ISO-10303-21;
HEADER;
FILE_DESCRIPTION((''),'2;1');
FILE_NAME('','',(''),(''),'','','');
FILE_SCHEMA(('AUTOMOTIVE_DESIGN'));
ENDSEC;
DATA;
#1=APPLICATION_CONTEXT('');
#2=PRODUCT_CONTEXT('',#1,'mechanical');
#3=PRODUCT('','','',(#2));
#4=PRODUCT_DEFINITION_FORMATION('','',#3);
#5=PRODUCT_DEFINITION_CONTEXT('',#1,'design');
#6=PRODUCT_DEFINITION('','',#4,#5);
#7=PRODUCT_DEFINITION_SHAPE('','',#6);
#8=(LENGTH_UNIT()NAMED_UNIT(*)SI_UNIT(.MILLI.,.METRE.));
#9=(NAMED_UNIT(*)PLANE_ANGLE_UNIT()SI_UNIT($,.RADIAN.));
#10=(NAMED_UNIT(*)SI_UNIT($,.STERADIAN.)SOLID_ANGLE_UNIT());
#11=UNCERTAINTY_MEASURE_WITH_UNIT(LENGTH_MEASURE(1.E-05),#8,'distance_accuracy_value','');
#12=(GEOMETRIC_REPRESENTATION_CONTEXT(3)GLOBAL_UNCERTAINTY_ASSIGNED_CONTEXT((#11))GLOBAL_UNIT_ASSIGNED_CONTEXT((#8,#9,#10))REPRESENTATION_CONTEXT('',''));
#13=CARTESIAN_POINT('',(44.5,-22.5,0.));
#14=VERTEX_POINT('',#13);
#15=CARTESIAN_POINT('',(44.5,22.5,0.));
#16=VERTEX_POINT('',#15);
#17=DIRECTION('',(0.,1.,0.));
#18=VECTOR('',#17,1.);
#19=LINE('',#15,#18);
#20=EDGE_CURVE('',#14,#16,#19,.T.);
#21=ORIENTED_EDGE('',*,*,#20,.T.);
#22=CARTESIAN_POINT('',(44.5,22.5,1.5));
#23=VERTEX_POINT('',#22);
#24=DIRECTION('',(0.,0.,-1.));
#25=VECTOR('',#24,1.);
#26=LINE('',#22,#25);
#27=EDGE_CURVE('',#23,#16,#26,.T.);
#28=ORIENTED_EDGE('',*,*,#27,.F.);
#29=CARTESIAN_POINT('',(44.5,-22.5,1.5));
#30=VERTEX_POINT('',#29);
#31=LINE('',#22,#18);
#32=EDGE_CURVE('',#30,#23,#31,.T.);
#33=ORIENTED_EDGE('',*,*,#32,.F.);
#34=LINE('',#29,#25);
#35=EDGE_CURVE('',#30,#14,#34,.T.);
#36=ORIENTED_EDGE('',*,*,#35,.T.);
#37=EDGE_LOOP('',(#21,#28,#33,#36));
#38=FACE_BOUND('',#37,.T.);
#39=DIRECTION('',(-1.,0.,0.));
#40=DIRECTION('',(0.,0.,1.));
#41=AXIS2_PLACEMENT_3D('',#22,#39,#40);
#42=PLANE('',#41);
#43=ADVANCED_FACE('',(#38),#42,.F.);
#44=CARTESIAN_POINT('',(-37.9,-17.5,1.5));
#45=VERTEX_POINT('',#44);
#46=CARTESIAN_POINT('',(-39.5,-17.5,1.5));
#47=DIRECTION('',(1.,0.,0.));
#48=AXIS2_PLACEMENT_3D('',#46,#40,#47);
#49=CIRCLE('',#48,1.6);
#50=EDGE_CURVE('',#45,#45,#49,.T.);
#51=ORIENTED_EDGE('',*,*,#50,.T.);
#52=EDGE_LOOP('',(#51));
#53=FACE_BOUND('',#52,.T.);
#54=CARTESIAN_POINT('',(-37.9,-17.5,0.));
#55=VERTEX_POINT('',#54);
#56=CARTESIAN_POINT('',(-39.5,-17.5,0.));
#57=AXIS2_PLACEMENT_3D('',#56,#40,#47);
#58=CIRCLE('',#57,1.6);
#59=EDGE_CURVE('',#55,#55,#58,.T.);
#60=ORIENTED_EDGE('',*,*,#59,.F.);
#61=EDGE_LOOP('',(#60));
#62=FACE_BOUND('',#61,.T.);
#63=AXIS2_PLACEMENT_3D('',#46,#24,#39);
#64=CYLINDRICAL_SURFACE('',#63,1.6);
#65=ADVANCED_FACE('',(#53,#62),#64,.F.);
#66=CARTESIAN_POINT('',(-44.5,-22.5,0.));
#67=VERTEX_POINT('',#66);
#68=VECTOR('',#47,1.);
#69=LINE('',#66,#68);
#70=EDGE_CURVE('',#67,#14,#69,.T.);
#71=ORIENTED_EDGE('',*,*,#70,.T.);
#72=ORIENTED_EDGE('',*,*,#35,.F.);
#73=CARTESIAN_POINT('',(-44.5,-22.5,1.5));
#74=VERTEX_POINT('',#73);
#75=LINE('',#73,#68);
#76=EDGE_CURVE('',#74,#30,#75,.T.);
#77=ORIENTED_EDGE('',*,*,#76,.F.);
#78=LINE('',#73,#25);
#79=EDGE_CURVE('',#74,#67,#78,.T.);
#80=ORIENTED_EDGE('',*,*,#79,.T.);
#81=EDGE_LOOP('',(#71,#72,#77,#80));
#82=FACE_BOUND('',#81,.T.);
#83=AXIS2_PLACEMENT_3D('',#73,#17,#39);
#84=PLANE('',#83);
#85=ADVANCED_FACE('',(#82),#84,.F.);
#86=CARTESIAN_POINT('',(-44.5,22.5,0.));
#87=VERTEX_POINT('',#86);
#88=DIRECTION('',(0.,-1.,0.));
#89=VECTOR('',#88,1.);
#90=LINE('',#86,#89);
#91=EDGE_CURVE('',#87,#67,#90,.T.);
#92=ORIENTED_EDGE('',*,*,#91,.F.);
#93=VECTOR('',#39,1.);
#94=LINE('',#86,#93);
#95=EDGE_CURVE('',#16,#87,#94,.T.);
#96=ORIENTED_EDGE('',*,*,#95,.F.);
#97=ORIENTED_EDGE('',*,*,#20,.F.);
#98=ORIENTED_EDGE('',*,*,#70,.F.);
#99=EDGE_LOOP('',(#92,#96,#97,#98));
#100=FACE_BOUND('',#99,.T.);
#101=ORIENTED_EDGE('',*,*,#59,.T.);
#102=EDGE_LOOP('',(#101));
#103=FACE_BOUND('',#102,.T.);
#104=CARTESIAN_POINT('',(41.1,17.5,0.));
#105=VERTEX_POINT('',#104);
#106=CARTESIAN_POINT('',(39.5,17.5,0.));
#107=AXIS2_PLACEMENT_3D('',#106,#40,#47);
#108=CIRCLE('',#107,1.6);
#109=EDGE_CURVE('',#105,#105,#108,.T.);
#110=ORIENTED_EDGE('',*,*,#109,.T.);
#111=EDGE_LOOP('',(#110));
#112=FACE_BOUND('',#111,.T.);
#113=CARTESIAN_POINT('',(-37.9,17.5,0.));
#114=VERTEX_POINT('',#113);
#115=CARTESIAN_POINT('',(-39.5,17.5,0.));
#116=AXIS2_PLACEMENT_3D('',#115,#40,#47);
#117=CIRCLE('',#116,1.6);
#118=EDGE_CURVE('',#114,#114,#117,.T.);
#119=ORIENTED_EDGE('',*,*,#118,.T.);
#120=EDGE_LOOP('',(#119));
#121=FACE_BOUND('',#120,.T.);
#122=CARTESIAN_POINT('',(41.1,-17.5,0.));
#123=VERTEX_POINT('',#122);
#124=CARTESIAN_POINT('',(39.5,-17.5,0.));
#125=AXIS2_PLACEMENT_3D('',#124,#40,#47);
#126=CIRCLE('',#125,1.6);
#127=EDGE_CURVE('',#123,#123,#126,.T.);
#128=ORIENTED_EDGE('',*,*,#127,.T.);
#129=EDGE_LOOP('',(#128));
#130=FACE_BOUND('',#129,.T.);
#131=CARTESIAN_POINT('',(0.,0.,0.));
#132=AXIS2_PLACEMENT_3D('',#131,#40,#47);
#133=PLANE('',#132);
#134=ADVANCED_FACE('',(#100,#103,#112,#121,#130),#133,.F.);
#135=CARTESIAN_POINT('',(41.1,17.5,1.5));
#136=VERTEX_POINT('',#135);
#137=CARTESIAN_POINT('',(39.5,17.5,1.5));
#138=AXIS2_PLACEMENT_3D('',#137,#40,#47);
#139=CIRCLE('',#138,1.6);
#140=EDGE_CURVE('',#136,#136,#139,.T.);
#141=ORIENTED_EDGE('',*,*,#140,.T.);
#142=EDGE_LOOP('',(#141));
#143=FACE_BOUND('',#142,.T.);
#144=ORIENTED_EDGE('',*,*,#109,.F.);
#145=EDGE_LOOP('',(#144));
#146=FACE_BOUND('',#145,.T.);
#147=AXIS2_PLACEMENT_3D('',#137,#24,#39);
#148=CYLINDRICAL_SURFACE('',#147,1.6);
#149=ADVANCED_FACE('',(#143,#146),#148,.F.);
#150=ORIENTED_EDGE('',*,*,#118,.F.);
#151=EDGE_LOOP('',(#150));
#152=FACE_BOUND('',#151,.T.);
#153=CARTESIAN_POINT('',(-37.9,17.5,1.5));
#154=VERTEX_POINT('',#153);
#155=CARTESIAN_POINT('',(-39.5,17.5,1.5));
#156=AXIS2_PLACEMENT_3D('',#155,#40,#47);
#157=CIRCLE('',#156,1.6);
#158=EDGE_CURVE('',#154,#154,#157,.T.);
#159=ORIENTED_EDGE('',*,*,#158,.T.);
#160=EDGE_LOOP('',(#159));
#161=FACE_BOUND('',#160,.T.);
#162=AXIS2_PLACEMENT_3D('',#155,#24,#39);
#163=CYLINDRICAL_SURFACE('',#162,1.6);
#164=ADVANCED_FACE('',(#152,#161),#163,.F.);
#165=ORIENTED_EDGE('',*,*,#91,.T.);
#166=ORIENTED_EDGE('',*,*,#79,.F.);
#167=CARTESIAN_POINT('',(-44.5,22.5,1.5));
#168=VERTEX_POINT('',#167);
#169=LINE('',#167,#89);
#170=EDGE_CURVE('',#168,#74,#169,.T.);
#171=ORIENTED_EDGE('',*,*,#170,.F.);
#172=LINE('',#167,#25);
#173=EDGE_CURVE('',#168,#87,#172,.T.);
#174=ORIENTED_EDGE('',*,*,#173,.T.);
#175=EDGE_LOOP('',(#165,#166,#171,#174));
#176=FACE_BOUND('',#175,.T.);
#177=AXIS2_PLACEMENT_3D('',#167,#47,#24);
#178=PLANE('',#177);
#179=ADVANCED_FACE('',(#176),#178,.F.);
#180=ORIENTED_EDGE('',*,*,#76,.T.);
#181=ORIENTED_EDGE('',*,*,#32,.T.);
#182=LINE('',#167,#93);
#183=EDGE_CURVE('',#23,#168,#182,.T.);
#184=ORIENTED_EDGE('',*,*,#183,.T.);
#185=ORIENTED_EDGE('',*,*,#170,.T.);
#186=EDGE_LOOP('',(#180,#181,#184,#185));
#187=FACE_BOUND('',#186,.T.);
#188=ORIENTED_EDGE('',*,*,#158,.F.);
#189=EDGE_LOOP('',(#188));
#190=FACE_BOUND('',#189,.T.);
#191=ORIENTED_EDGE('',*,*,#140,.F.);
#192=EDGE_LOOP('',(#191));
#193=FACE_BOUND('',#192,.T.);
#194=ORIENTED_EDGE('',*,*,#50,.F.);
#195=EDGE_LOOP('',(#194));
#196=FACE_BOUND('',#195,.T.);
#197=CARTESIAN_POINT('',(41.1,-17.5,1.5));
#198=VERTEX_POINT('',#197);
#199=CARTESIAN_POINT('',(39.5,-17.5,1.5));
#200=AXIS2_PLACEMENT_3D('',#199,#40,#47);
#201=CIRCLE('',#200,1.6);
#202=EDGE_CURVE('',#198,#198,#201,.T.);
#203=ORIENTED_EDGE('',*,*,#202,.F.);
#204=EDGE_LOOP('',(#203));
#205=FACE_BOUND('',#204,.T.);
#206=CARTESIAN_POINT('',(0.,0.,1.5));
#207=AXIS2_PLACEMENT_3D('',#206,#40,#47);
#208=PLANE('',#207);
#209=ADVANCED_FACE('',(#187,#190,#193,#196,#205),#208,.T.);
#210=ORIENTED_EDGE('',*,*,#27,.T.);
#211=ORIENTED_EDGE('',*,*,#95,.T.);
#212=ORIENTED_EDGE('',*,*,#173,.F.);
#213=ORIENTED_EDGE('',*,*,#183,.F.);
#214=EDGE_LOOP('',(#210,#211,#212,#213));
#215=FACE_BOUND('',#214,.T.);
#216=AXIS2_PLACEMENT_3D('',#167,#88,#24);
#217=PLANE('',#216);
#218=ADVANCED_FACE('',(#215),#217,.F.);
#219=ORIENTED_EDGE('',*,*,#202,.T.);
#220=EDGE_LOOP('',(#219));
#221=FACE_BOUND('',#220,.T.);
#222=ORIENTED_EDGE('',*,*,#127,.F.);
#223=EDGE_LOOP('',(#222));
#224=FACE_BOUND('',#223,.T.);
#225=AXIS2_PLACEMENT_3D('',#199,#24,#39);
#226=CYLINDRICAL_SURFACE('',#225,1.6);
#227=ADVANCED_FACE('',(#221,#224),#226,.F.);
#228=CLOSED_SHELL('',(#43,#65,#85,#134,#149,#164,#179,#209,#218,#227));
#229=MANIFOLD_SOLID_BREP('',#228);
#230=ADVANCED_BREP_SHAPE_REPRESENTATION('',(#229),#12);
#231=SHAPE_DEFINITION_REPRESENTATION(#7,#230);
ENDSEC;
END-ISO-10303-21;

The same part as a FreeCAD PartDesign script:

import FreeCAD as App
import Part
import Sketcher

V = App.Vector
Q = App.Units.Quantity


def add_polygon(sketch, points):
    """Adds a closed chain of lines whose ends are joined by coincident constraints."""
    first, n = sketch.GeometryCount, len(points)
    for a, b in zip(points, points[1:] + points[:1]):
        sketch.addGeometry(Part.LineSegment(App.Vector(*a, 0), App.Vector(*b, 0)), False)
    for i in range(n):
        sketch.addConstraint(Sketcher.Constraint("Coincident", first + i, 2, first + (i + 1) % n, 1))

doc = App.newDocument("Part")
body = doc.addObject("PartDesign::Body", "Body")

sketch1 = body.newObject("Sketcher::SketchObject", "Sketch")
sketch1.AttachmentSupport = (doc.getObject("XY_Plane"), [""])
sketch1.MapMode = "FlatFace"
add_polygon(sketch1, [(-44.5, 22.5), (-44.5, -22.5), (44.5, -22.5), (44.5, 22.5)])
sketch1.addGeometry(Part.Circle(V(-39.5, -17.5, 0), V(0, 0, 1), 1.6), False)
sketch1.addGeometry(Part.Circle(V(39.5, -17.5, 0), V(0, 0, 1), 1.6), False)
sketch1.addGeometry(Part.Circle(V(-39.5, 17.5, 0), V(0, 0, 1), 1.6), False)
sketch1.addGeometry(Part.Circle(V(39.5, 17.5, 0), V(0, 0, 1), 1.6), False)
sketch1.addConstraint(Sketcher.Constraint("Vertical", 0))
sketch1.addConstraint(Sketcher.Constraint("Horizontal", 1))
sketch1.addConstraint(Sketcher.Constraint("Vertical", 2))
sketch1.addConstraint(Sketcher.Constraint("Horizontal", 3))
sketch1.addConstraint(Sketcher.Constraint("Equal", 4, 5))
sketch1.addConstraint(Sketcher.Constraint("Equal", 5, 6))
sketch1.addConstraint(Sketcher.Constraint("Equal", 6, 7))
sketch1.addConstraint(Sketcher.Constraint("Symmetric", 5, 3, 6, 3, -1, 1))
sketch1.addConstraint(Sketcher.Constraint("Symmetric", 4, 3, 7, 3, -1, 1))
sketch1.addConstraint(Sketcher.Constraint("Symmetric", 0, 2, 2, 2, -1, 1))
sketch1.addConstraint(Sketcher.Constraint("Symmetric", 4, 3, 5, 3, -2))
sketch1.addConstraint(Sketcher.Constraint("Diameter", 4, Q("3.2 mm")))
sketch1.addConstraint(Sketcher.Constraint("DistanceX", 1, 1, 1, 2, Q("89 mm")))
sketch1.addConstraint(Sketcher.Constraint("DistanceY", 0, 2, 0, 1, Q("45 mm")))
sketch1.addConstraint(Sketcher.Constraint("DistanceX", 4, 3, 5, 3, Q("79 mm")))
sketch1.addConstraint(Sketcher.Constraint("DistanceY", 4, 3, 6, 3, Q("35 mm")))
pad1 = body.newObject("PartDesign::Pad", "Pad")
pad1.Profile = sketch1
pad1.Length = 1.5

doc.recompute()
